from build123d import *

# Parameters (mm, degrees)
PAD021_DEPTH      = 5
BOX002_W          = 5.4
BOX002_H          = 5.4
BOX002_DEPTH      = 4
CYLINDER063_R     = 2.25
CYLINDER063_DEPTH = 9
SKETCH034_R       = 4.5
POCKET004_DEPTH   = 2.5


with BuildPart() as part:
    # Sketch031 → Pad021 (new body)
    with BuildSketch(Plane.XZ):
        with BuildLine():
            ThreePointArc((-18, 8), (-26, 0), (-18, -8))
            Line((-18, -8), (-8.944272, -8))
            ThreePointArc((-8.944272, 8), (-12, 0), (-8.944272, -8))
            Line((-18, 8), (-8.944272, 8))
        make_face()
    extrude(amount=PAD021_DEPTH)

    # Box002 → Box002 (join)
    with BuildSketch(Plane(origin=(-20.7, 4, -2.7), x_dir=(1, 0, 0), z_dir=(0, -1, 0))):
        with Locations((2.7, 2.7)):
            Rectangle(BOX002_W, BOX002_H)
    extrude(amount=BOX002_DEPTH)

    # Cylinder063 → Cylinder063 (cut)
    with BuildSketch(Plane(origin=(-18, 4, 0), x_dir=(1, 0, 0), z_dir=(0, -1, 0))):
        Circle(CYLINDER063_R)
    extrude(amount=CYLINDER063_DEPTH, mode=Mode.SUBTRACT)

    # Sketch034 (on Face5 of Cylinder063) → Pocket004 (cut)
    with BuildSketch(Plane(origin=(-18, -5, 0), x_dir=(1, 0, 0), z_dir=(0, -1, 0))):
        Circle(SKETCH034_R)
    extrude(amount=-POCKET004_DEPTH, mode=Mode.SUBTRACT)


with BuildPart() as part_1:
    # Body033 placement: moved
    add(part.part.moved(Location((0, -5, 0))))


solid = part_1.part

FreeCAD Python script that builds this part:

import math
import FreeCAD as App
import Part
import Sketcher
from FreeCAD import Vector
Q = App.Units.Quantity

doc = App.newDocument("Part")
body = doc.addObject("PartDesign::Body", "Body")

sketch1 = body.newObject("Sketcher::SketchObject", "Sketch")
sketch1.AttachmentSupport = (doc.getObject("XZ_Plane"), [""])
sketch1.MapMode = "FlatFace"
sketch1.addGeometry(Part.ArcOfCircle(Part.Circle(Vector(-18, 0, 0), Vector(0, 0, 1), 8), math.radians(90), math.radians(270)), False)
sketch1.addGeometry(Part.LineSegment(Vector(-18, -8, 0), Vector(-8.944272, -8, 0)), False)
sketch1.addGeometry(Part.ArcOfCircle(Part.Circle(Vector(0, 0, 0), Vector(0, 0, 1), 12), math.radians(138.189686), math.radians(221.810314)), False)
sketch1.addGeometry(Part.LineSegment(Vector(-8.944272, 8, 0), Vector(-18, 8, 0)), False)
sketch1.addConstraint(Sketcher.Constraint("Tangent", 0, 2, 1, 1))
sketch1.addConstraint(Sketcher.Constraint("Coincident", 1, 2, 2, 2))
sketch1.addConstraint(Sketcher.Constraint("Coincident", 2, 1, 3, 1))
sketch1.addConstraint(Sketcher.Constraint("Tangent", 3, 2, 0, 1))
sketch1.addConstraint(Sketcher.Constraint("Horizontal", 1))
sketch1.addConstraint(Sketcher.Constraint("Horizontal", 3))
sketch1.addConstraint(Sketcher.Constraint("Coincident", 2, 3, -1, 1))
sketch1.addConstraint(Sketcher.Constraint("PointOnObject", 0, 3, -1))
sketch1.addConstraint(Sketcher.Constraint("Radius", 0, Q("8 mm")))
sketch1.addConstraint(Sketcher.Constraint("Radius", 2, Q("12 mm")))
sketch1.addConstraint(Sketcher.Constraint("DistanceX", 0, 3, -1, 1, Q("18 mm")))
pad1 = body.newObject("PartDesign::Pad", "Pad")
pad1.Profile = sketch1
pad1.Length = 5

sketch2 = body.newObject("Sketcher::SketchObject", "Sketch001")
sketch2.AttachmentSupport = (doc.getObject("XZ_Plane"), [""])
sketch2.MapMode = "FlatFace"
sketch2.AttachmentOffset = App.Placement(Vector(0, 0, -4), App.Rotation())
sketch2.addGeometry(Part.LineSegment(Vector(-20.7, 2.7, 0), Vector(-20.7, -2.7, 0)), False)
sketch2.addGeometry(Part.LineSegment(Vector(-20.7, -2.7, 0), Vector(-15.3, -2.7, 0)), False)
sketch2.addGeometry(Part.LineSegment(Vector(-15.3, -2.7, 0), Vector(-15.3, 2.7, 0)), False)
sketch2.addGeometry(Part.LineSegment(Vector(-15.3, 2.7, 0), Vector(-20.7, 2.7, 0)), False)
sketch2.addConstraint(Sketcher.Constraint("Coincident", 0, 2, 1, 1))
sketch2.addConstraint(Sketcher.Constraint("Coincident", 1, 2, 2, 1))
sketch2.addConstraint(Sketcher.Constraint("Coincident", 2, 2, 3, 1))
sketch2.addConstraint(Sketcher.Constraint("Coincident", 3, 2, 0, 1))
sketch2.addConstraint(Sketcher.Constraint("Vertical", 0))
sketch2.addConstraint(Sketcher.Constraint("Horizontal", 1))
sketch2.addConstraint(Sketcher.Constraint("Vertical", 2))
sketch2.addConstraint(Sketcher.Constraint("Horizontal", 3))
sketch2.addConstraint(Sketcher.Constraint("Equal", 3, 0))
sketch2.addConstraint(Sketcher.Constraint("DistanceX", 1, 1, 1, 2, Q("5.4 mm")))
sketch2.addConstraint(Sketcher.Constraint("DistanceX", 0, 2, -1, 1, Q("20.7 mm")))
sketch2.addConstraint(Sketcher.Constraint("DistanceY", 0, 2, -1, 1, Q("2.7 mm")))
pad2 = body.newObject("PartDesign::Pad", "Pad001")
pad2.Profile = sketch2
pad2.Length = 4

sketch3 = body.newObject("Sketcher::SketchObject", "Sketch002")
sketch3.AttachmentSupport = (doc.getObject("XZ_Plane"), [""])
sketch3.MapMode = "FlatFace"
sketch3.AttachmentOffset = App.Placement(Vector(0, 0, -4), App.Rotation())
sketch3.addGeometry(Part.Circle(Vector(-18, 0, 0), Vector(0, 0, 1), 2.25), False)
sketch3.addConstraint(Sketcher.Constraint("PointOnObject", 0, 3, -1))
sketch3.addConstraint(Sketcher.Constraint("Diameter", 0, Q("4.5 mm")))
sketch3.addConstraint(Sketcher.Constraint("DistanceX", 0, 3, -1, 1, Q("18 mm")))
pocket1 = body.newObject("PartDesign::Pocket", "Pocket")
pocket1.Profile = sketch3
pocket1.Length = 9
pocket1.Reversed = True

sketch4 = body.newObject("Sketcher::SketchObject", "Sketch003")
sketch4.AttachmentSupport = (doc.getObject("XZ_Plane"), [""])
sketch4.MapMode = "FlatFace"
sketch4.AttachmentOffset = App.Placement(Vector(0, 0, 5), App.Rotation())
sketch4.addGeometry(Part.Circle(Vector(-18, 0, 0), Vector(0, 0, 1), 4.5), False)
sketch4.addConstraint(Sketcher.Constraint("PointOnObject", 0, 3, -1))
sketch4.addConstraint(Sketcher.Constraint("Diameter", 0, Q("9 mm")))
sketch4.addConstraint(Sketcher.Constraint("DistanceX", 0, 3, -1, 1, Q("18 mm")))
pocket2 = body.newObject("PartDesign::Pocket", "Pocket001")
pocket2.Profile = sketch4
pocket2.Length = 2.5
body2 = doc.addObject("PartDesign::Body", "Body001")
doc.recompute()

body.Placement = App.Placement(Vector(0, -5, 0), App.Rotation(Vector(0, 0, 1), 0))
boolean = body2.newObject("PartDesign::Boolean", "Boolean")
boolean.Type = "Fuse"
boolean.addObjects([body])

doc.recompute()
